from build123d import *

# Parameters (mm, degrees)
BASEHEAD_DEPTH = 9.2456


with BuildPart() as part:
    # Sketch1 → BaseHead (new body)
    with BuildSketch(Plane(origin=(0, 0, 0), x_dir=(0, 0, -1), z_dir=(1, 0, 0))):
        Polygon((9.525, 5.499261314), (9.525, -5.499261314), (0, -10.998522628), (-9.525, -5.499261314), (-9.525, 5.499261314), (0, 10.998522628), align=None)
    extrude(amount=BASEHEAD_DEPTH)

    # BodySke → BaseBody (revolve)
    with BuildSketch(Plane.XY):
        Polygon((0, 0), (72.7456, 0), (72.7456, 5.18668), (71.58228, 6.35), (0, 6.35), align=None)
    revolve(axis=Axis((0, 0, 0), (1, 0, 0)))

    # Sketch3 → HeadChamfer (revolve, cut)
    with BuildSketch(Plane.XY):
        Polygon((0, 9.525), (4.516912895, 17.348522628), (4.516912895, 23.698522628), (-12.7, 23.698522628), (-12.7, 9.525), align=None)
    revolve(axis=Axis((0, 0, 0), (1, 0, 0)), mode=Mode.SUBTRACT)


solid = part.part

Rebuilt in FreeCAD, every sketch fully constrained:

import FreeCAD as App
import Part
import Sketcher
from FreeCAD import Vector
Q = App.Units.Quantity


def add_polygon(sketch, points):
    """Adds a closed chain of lines whose ends are joined by coincident constraints."""
    first, n = sketch.GeometryCount, len(points)
    for a, b in zip(points, points[1:] + points[:1]):
        sketch.addGeometry(Part.LineSegment(App.Vector(*a, 0), App.Vector(*b, 0)), False)
    for i in range(n):
        sketch.addConstraint(Sketcher.Constraint("Coincident", first + i, 2, first + (i + 1) % n, 1))

doc = App.newDocument("Part")
body = doc.addObject("PartDesign::Body", "Body")

# Sketch on YZ plane
sketch1 = body.newObject("Sketcher::SketchObject", "Sketch")
sketch1.AttachmentSupport = (doc.getObject("YZ_Plane"), [""])
sketch1.MapMode = "FlatFace"
add_polygon(sketch1, [(-5.499261, -9.525), (5.499261, -9.525), (10.998523, 0), (5.499261, 9.525), (-5.499261, 9.525), (-10.998523, 0)])  # lines 0-5
sketch1.addConstraint([
    Sketcher.Constraint("Horizontal", 0),
    Sketcher.Constraint("Horizontal", 3),
    Sketcher.Constraint("Symmetric", 0, 2, 3, 2, -1, 1),
    Sketcher.Constraint("Symmetric", 1, 2, 4, 2, -1, 1),
    Sketcher.Constraint("PointOnObject", 1, 2, -1),
    Sketcher.Constraint("Parallel", 2, 5),
    Sketcher.Constraint("Vertical", 0, 2, 2, 2),
    Sketcher.Constraint("Angle", 1, Q("60 deg")),
    Sketcher.Constraint("DistanceY", 0, 2, 2, 2, Q("0.75 in")),
    Sketcher.Constraint("DistanceX", 0, 1, 0, 2, Q("10.998523 mm")),
])
pad1 = body.newObject("PartDesign::Pad", "Pad")
pad1.Profile = sketch1
pad1.Length = Q("0.364 in")

# Sketch on XY plane
sketch2 = body.newObject("Sketcher::SketchObject", "Sketch001")
sketch2.AttachmentSupport = (doc.getObject("XY_Plane"), [""])
sketch2.MapMode = "FlatFace"
add_polygon(sketch2, [(0, 0), (72.7456, 0), (72.7456, 5.18668), (71.58228, 6.35), (0, 6.35)])  # lines 0-4
sketch2.addConstraint([
    Sketcher.Constraint("Horizontal", 0),
    Sketcher.Constraint("Vertical", 1),
    Sketcher.Constraint("Horizontal", 3),
    Sketcher.Constraint("Vertical", 4),
    Sketcher.Constraint("Coincident", 4, 2, -1, 1),
    Sketcher.Constraint("Angle", 2, Q("135 deg")),
    Sketcher.Constraint("DistanceY", 4, 2, 4, 1, Q("0.25 in")),
    Sketcher.Constraint("DistanceX", 0, 1, 0, 2, Q("2.864 in")),
    Sketcher.Constraint("DistanceX", 3, 2, 3, 1, Q("2.8182 in")),
])
revolution = body.newObject("PartDesign::Revolution", "Revolution")
revolution.Profile = sketch2
revolution.ReferenceAxis = (sketch2, ["H_Axis"])
revolution.Angle = 360

# Sketch on XY plane
sketch3 = body.newObject("Sketcher::SketchObject", "Sketch002")
sketch3.AttachmentSupport = (doc.getObject("XY_Plane"), [""])
sketch3.MapMode = "FlatFace"
add_polygon(sketch3, [(0, 9.525), (4.516913, 17.348523), (4.516913, 23.698523), (-12.7, 23.698523), (-12.7, 9.525)])  # lines 0-4
sketch3.addConstraint([
    Sketcher.Constraint("Vertical", 1),
    Sketcher.Constraint("Horizontal", 2),
    Sketcher.Constraint("Vertical", 3),
    Sketcher.Constraint("Horizontal", 4),
    Sketcher.Constraint("PointOnObject", 4, 2, -2),
    Sketcher.Constraint("DistanceX", 4, 1, 4, 2, Q("0.5 in")),
    Sketcher.Constraint("Angle", 0, Q("60 deg")),
    Sketcher.Constraint("DistanceY", 1, 1, 1, 2, Q("0.25 in")),
    Sketcher.Constraint("DistanceY", -1, 1, 3, 2, Q("0.375 in")),
    Sketcher.Constraint("DistanceX", 2, 2, 2, 1, Q("17.216913 mm")),
])
groove = body.newObject("PartDesign::Groove", "Groove")
groove.Profile = sketch3
groove.ReferenceAxis = (sketch3, ["H_Axis"])
groove.Angle = 360

doc.recompute()
